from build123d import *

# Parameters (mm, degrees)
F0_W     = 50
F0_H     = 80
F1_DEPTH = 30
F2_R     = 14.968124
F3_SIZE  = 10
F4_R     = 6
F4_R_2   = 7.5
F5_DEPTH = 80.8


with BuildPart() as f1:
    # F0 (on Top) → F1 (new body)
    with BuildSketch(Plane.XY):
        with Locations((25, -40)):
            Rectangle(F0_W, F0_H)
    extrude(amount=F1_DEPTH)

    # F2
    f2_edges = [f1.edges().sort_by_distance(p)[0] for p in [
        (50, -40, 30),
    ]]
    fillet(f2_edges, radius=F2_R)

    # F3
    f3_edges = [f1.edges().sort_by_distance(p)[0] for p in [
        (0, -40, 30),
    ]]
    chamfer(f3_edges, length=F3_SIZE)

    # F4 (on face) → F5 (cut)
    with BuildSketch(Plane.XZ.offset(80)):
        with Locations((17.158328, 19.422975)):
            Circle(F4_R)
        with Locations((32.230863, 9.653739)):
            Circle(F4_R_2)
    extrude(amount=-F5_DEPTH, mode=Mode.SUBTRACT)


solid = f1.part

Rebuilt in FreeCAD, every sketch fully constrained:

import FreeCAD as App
import Part
import Sketcher
from FreeCAD import Vector
Q = App.Units.Quantity


def edges_at(feature, points):
    """Names of the edges that pass closest to the given points."""
    edges = feature.Shape.Edges
    near = lambda p: min(range(len(edges)), key=lambda i: edges[i].distToShape(Part.Vertex(*p))[0])
    return sorted({f"Edge{near(p) + 1}" for p in points})

doc = App.newDocument("Part")
body = doc.addObject("PartDesign::Body", "Body")

# Sketch on XY plane
sketch1 = body.newObject("Sketcher::SketchObject", "Sketch")
sketch1.AttachmentSupport = (doc.getObject("XY_Plane"), [""])
sketch1.MapMode = "FlatFace"
sketch1.addGeometry(Part.LineSegment(Vector(0, 0, 0), Vector(0, -80, 0)), False)
sketch1.addGeometry(Part.LineSegment(Vector(0, -80, 0), Vector(50, -80, 0)), False)
sketch1.addGeometry(Part.LineSegment(Vector(50, -80, 0), Vector(50, 0, 0)), False)
sketch1.addGeometry(Part.LineSegment(Vector(50, 0, 0), Vector(0, 0, 0)), False)
sketch1.addConstraint(Sketcher.Constraint("Coincident", 0, 2, 1, 1))
sketch1.addConstraint(Sketcher.Constraint("Coincident", 1, 2, 2, 1))
sketch1.addConstraint(Sketcher.Constraint("Coincident", 2, 2, 3, 1))
sketch1.addConstraint(Sketcher.Constraint("Coincident", 3, 2, 0, 1))
sketch1.addConstraint(Sketcher.Constraint("Vertical", 0))
sketch1.addConstraint(Sketcher.Constraint("Horizontal", 1))
sketch1.addConstraint(Sketcher.Constraint("Vertical", 2))
sketch1.addConstraint(Sketcher.Constraint("Horizontal", 3))
sketch1.addConstraint(Sketcher.Constraint("Coincident", 3, 2, -1, 1))
sketch1.addConstraint(Sketcher.Constraint("DistanceX", 1, 1, 1, 2, Q("50 mm")))
sketch1.addConstraint(Sketcher.Constraint("DistanceY", 0, 2, 0, 1, Q("80 mm")))
pad1 = body.newObject("PartDesign::Pad", "Pad")
pad1.Profile = sketch1
pad1.Length = 30
doc.recompute()

fillet = body.newObject("PartDesign::Fillet", "Fillet")
fillet.Base = (pad1, edges_at(pad1, [(50, -40, 30)]))
fillet.Radius = 14.968124
doc.recompute()

chamfer = body.newObject("PartDesign::Chamfer", "Chamfer")
chamfer.Base = (fillet, edges_at(fillet, [(0, -40, 30)]))
chamfer.Size = 10

# Sketch on XZ plane
sketch2 = body.newObject("Sketcher::SketchObject", "Sketch001")
sketch2.AttachmentSupport = (doc.getObject("XZ_Plane"), [""])
sketch2.MapMode = "FlatFace"
sketch2.AttachmentOffset = App.Placement(Vector(0, 0, 80), App.Rotation())
sketch2.addGeometry(Part.Circle(Vector(17.158328, 19.422975, 0), Vector(0, 0, 1), 6), False)
sketch2.addGeometry(Part.Circle(Vector(32.230863, 9.653739, 0), Vector(0, 0, 1), 7.5), False)
sketch2.addConstraint(Sketcher.Constraint("Diameter", 0, Q("12 mm")))
sketch2.addConstraint(Sketcher.Constraint("Diameter", 1, Q("15 mm")))
sketch2.addConstraint(Sketcher.Constraint("DistanceX", -1, 1, 0, 3, Q("17.158328 mm")))
sketch2.addConstraint(Sketcher.Constraint("DistanceY", -1, 1, 1, 3, Q("9.653739 mm")))
sketch2.addConstraint(Sketcher.Constraint("DistanceY", -1, 1, 0, 3, Q("19.422975 mm")))
sketch2.addConstraint(Sketcher.Constraint("DistanceX", -1, 1, 1, 3, Q("32.230863 mm")))
pocket1 = body.newObject("PartDesign::Pocket", "Pocket")
pocket1.Profile = sketch2
pocket1.Length = 80.8

doc.recompute()
